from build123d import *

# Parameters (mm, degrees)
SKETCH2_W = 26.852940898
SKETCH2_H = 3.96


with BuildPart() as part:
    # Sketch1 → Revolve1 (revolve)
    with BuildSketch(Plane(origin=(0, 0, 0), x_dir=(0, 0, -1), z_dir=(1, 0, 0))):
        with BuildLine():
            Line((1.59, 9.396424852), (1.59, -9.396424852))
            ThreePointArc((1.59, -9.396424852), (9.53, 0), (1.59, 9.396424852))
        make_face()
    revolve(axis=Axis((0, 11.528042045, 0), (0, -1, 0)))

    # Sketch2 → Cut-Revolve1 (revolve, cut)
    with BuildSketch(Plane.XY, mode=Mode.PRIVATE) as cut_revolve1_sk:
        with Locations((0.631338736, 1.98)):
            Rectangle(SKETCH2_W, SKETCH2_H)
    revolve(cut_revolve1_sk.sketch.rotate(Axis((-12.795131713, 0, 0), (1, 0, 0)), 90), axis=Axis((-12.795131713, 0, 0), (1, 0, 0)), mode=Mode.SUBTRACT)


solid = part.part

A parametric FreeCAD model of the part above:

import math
import FreeCAD as App
import Part
import Sketcher

V = App.Vector

doc = App.newDocument("Part")
params = doc.addObject("Spreadsheet::Sheet", "Params")
for row, (alias, value) in enumerate([
    ("sketch1_radius", "9.53 mm"),
    ("revolution_angle", "360 deg"),
    ("sketch2_height", "3.96 mm"),
    ("groove_angle", "360 deg"),
], start=1):
    params.set(f"A{row}", alias)
    params.set(f"B{row}", "=" + value)
    params.setAlias(f"B{row}", alias)

body = doc.addObject("PartDesign::Body", "Body")

# Sketch on YZ plane
sketch1 = body.newObject("Sketcher::SketchObject", "Sketch")
sketch1.AttachmentSupport = (doc.getObject("YZ_Plane"), [""])
sketch1.MapMode = "FlatFace"
sketch1.addGeometry([
    Part.LineSegment(V(9, -2, 0), V(-9, -2, 0)),
    Part.ArcOfCircle(Part.Circle(V(0, 0, 0), V(0, 0, 1), 10), math.radians(-170), math.radians(-10)),
], False)
sketch1.addConstraint([
    Sketcher.Constraint("Coincident", 0, 1, 1, 2),
    Sketcher.Constraint("Coincident", 1, 1, 0, 2),
    Sketcher.Constraint("Horizontal", 0),
    Sketcher.Constraint("Coincident", 1, 3, -1, 1),
    Sketcher.Constraint("Radius", 1, 9.53),
    Sketcher.Constraint("DistanceY", 0, 1, -1, 1, 1.59),
])
sketch1.setExpression("Constraints[4]", "Params.sketch1_radius")
revolution = body.newObject("PartDesign::Revolution", "Revolution")
revolution.Profile = sketch1
revolution.ReferenceAxis = (sketch1, ["H_Axis"])
revolution.setExpression("Angle", "Params.revolution_angle")

# Sketch on XY plane
sketch2 = body.newObject("Sketcher::SketchObject", "Sketch001")
sketch2.AttachmentSupport = (doc.getObject("XY_Plane"), [""])
sketch2.MapMode = "FlatFace"
sketch2.addGeometry([
    Part.LineSegment(V(-12.8, 4, 0), V(-12.8, 0, 0)),
    Part.LineSegment(V(-12.8, 0, 0), V(14.1, 0, 0)),
    Part.LineSegment(V(14.1, 0, 0), V(14.1, 4, 0)),
    Part.LineSegment(V(14.1, 4, 0), V(-12.8, 4, 0)),
], False)
sketch2.addConstraint([
    Sketcher.Constraint("Coincident", 0, 2, 1, 1),
    Sketcher.Constraint("Coincident", 1, 2, 2, 1),
    Sketcher.Constraint("Coincident", 2, 2, 3, 1),
    Sketcher.Constraint("Coincident", 3, 2, 0, 1),
    Sketcher.Constraint("Vertical", 0),
    Sketcher.Constraint("Horizontal", 1),
    Sketcher.Constraint("Vertical", 2),
    Sketcher.Constraint("Horizontal", 3),
    Sketcher.Constraint("PointOnObject", 0, 2, -1),
    Sketcher.Constraint("DistanceY", 0, 2, 0, 1, 3.96),
    Sketcher.Constraint("DistanceX", 1, 1, 1, 2, 26.852941),
    Sketcher.Constraint("DistanceX", 0, 2, -1, 1, 12.795132),
])
sketch2.setExpression("Constraints[9]", "Params.sketch2_height")
groove = body.newObject("PartDesign::Groove", "Groove")
groove.Profile = sketch2
groove.ReferenceAxis = (sketch2, ["H_Axis"])
groove.setExpression("Angle", "Params.groove_angle")

doc.recompute()
